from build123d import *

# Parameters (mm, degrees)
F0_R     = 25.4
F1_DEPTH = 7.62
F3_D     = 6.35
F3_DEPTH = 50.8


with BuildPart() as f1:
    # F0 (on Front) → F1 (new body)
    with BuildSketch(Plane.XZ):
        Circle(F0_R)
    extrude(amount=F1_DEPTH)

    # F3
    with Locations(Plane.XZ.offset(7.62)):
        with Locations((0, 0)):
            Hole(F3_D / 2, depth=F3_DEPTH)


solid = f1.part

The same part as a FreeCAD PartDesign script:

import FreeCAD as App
import Part
import Sketcher
from FreeCAD import Vector
Q = App.Units.Quantity

doc = App.newDocument("Part")
body = doc.addObject("PartDesign::Body", "Body")

sketch1 = doc.addObject("Sketcher::SketchObject", "Sketch")
body.addObject(sketch1)
sketch1.AttachmentSupport = (doc.XZ_Plane, [""])
sketch1.MapMode = "FlatFace"
sketch1.addGeometry(Part.Circle(Vector(0, 0, 0), Vector(0, 0, 1), 25.4), False)
sketch1.addConstraint(Sketcher.Constraint("Coincident", 0, 3, -1, 1))
sketch1.addConstraint(Sketcher.Constraint("Diameter", 0, Q("2 in")))
pad1 = doc.addObject("PartDesign::Pad", "Pad")
body.addObject(pad1)
pad1.Profile = sketch1
pad1.Length = Q("0.3 in")

sketch2 = doc.addObject("Sketcher::SketchObject", "Sketch001")
body.addObject(sketch2)
sketch2.AttachmentSupport = (doc.XZ_Plane, [""])
sketch2.MapMode = "FlatFace"
sketch2.AttachmentOffset = App.Placement(Vector(0, 0, 0.3 * 25.4), App.Rotation())
sketch2.addGeometry(Part.Circle(Vector(0, 0, 0), Vector(0, 0, 1), 3.175), False)
sketch2.addConstraint(Sketcher.Constraint("Coincident", 0, 3, -1, 1))
sketch2.addConstraint(Sketcher.Constraint("Diameter", 0, Q("0.25 in")))
doc.recompute()
hole = doc.addObject("PartDesign::Hole", "Hole")
body.addObject(hole)
hole.Profile = sketch2
hole.ThreadType = "None"
hole.Diameter = Q("0.25 in")
hole.DepthType = "Dimension"
hole.Depth = Q("2 in")
hole.DrillPoint = "Flat"

doc.recompute()
